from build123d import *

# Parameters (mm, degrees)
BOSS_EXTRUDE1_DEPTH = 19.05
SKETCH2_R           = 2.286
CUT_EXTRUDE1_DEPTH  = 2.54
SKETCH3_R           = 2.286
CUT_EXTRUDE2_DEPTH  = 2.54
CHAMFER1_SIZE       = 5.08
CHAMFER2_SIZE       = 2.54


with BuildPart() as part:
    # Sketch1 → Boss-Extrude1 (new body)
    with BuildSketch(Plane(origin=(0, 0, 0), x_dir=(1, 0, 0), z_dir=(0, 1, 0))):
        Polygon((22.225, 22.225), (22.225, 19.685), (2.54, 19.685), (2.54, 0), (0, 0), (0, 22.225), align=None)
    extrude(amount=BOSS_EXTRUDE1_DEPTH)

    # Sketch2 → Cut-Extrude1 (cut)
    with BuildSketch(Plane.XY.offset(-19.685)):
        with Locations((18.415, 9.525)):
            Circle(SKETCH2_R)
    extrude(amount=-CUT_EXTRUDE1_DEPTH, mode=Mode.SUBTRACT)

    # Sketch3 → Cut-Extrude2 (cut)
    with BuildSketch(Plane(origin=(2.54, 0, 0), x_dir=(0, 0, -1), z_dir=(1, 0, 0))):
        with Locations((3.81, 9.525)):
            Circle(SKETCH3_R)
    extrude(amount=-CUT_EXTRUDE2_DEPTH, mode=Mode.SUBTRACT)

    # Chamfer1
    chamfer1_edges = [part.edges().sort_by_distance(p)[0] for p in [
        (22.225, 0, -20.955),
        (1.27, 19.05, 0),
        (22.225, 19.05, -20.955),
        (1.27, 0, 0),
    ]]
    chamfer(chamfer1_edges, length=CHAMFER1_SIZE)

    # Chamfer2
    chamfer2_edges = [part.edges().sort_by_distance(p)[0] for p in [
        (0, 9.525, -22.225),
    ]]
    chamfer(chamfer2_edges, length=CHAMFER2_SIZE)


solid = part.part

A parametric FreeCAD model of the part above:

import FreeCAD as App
import Part
import Sketcher

V = App.Vector
Q = App.Units.Quantity


def edges_at(feature, points):
    """Names of the edges that pass closest to the given points."""
    edges = feature.Shape.Edges
    near = lambda p: min(range(len(edges)), key=lambda i: edges[i].distToShape(Part.Vertex(*p))[0])
    return sorted({f"Edge{near(p) + 1}" for p in points})

doc = App.newDocument("Part")
body = doc.addObject("PartDesign::Body", "Body")

sketch1 = body.newObject("Sketcher::SketchObject", "Sketch")
sketch1.AttachmentSupport = (doc.getObject("XZ_Plane"), [""])
sketch1.MapMode = "FlatFace"
sketch1.addGeometry([
    Part.LineSegment(V(22.225, -19.685, 0), V(22.225, -22.225, 0)),
    Part.LineSegment(V(22.225, -22.225, 0), V(0, -22.225, 0)),
    Part.LineSegment(V(0, -22.225, 0), V(0, 0, 0)),
    Part.LineSegment(V(0, 0, 0), V(2.54, 0, 0)),
    Part.LineSegment(V(2.54, 0, 0), V(2.54, -19.685, 0)),
    Part.LineSegment(V(2.54, -19.685, 0), V(22.225, -19.685, 0)),
], False)
sketch1.addConstraint([
    Sketcher.Constraint("Coincident", 0, 2, 1, 1),
    Sketcher.Constraint("Coincident", 1, 2, 2, 1),
    Sketcher.Constraint("Coincident", 2, 2, 3, 1),
    Sketcher.Constraint("Coincident", 3, 2, 4, 1),
    Sketcher.Constraint("Coincident", 4, 2, 5, 1),
    Sketcher.Constraint("Coincident", 5, 2, 0, 1),
    Sketcher.Constraint("Vertical", 0),
    Sketcher.Constraint("Horizontal", 1),
    Sketcher.Constraint("Vertical", 2),
    Sketcher.Constraint("Horizontal", 3),
    Sketcher.Constraint("Vertical", 4),
    Sketcher.Constraint("Horizontal", 5),
    Sketcher.Constraint("Coincident", 2, 2, -1, 1),
    Sketcher.Constraint("Equal", 3, 0),
    Sketcher.Constraint("Equal", 1, 2),
    Sketcher.Constraint("DistanceX", 3, 1, 3, 2, Q("0.1 in")),
    Sketcher.Constraint("DistanceX", 1, 2, 1, 1, Q("0.875 in")),
])
pad1 = body.newObject("PartDesign::Pad", "Pad")
pad1.Profile = sketch1
pad1.Length = Q("0.75 in")
pad1.Reversed = True

sketch2 = body.newObject("Sketcher::SketchObject", "Sketch001")
sketch2.AttachmentSupport = (doc.getObject("XY_Plane"), [""])
sketch2.MapMode = "FlatFace"
sketch2.AttachmentOffset = App.Placement(V(0, 0, -0.775 * 25.4), App.Rotation())
sketch2.addGeometry(Part.Circle(V(18.415, 9.525, 0), V(0, 0, 1), 2.286), False)
sketch2.addConstraint([
    Sketcher.Constraint("Diameter", 0, Q("0.18 in")),
    Sketcher.Constraint("DistanceX", -1, 1, 0, 3, Q("0.725 in")),
    Sketcher.Constraint("DistanceY", -1, 1, 0, 3, Q("0.375 in")),
])
pocket1 = body.newObject("PartDesign::Pocket", "Pocket")
pocket1.Profile = sketch2
pocket1.Length = Q("0.1 in")

sketch3 = body.newObject("Sketcher::SketchObject", "Sketch002")
sketch3.AttachmentSupport = (doc.getObject("YZ_Plane"), [""])
sketch3.MapMode = "FlatFace"
sketch3.AttachmentOffset = App.Placement(V(0, 0, 0.1 * 25.4), App.Rotation())
sketch3.addGeometry(Part.Circle(V(9.525, -3.81, 0), V(0, 0, 1), 2.286), False)
sketch3.addConstraint([
    Sketcher.Constraint("Diameter", 0, Q("0.18 in")),
    Sketcher.Constraint("DistanceY", 0, 3, -1, 1, Q("0.15 in")),
    Sketcher.Constraint("DistanceX", -1, 1, 0, 3, Q("0.375 in")),
])
pocket2 = body.newObject("PartDesign::Pocket", "Pocket001")
pocket2.Profile = sketch3
pocket2.Length = Q("0.1 in")
doc.recompute()

chamfer = body.newObject("PartDesign::Chamfer", "Chamfer")
chamfer.Base = (pocket2, edges_at(pocket2, [
    (22.225, 0, -20.955),
    (1.27, 19.05, 0),
    (22.225, 19.05, -20.955),
    (1.27, 0, 0),
]))
chamfer.Size = Q("0.2 in")
doc.recompute()

chamfer2 = body.newObject("PartDesign::Chamfer", "Chamfer001")
chamfer2.Base = (chamfer, edges_at(chamfer, [(0, 9.525, -22.225)]))
chamfer2.Size = Q("0.1 in")

doc.recompute()
